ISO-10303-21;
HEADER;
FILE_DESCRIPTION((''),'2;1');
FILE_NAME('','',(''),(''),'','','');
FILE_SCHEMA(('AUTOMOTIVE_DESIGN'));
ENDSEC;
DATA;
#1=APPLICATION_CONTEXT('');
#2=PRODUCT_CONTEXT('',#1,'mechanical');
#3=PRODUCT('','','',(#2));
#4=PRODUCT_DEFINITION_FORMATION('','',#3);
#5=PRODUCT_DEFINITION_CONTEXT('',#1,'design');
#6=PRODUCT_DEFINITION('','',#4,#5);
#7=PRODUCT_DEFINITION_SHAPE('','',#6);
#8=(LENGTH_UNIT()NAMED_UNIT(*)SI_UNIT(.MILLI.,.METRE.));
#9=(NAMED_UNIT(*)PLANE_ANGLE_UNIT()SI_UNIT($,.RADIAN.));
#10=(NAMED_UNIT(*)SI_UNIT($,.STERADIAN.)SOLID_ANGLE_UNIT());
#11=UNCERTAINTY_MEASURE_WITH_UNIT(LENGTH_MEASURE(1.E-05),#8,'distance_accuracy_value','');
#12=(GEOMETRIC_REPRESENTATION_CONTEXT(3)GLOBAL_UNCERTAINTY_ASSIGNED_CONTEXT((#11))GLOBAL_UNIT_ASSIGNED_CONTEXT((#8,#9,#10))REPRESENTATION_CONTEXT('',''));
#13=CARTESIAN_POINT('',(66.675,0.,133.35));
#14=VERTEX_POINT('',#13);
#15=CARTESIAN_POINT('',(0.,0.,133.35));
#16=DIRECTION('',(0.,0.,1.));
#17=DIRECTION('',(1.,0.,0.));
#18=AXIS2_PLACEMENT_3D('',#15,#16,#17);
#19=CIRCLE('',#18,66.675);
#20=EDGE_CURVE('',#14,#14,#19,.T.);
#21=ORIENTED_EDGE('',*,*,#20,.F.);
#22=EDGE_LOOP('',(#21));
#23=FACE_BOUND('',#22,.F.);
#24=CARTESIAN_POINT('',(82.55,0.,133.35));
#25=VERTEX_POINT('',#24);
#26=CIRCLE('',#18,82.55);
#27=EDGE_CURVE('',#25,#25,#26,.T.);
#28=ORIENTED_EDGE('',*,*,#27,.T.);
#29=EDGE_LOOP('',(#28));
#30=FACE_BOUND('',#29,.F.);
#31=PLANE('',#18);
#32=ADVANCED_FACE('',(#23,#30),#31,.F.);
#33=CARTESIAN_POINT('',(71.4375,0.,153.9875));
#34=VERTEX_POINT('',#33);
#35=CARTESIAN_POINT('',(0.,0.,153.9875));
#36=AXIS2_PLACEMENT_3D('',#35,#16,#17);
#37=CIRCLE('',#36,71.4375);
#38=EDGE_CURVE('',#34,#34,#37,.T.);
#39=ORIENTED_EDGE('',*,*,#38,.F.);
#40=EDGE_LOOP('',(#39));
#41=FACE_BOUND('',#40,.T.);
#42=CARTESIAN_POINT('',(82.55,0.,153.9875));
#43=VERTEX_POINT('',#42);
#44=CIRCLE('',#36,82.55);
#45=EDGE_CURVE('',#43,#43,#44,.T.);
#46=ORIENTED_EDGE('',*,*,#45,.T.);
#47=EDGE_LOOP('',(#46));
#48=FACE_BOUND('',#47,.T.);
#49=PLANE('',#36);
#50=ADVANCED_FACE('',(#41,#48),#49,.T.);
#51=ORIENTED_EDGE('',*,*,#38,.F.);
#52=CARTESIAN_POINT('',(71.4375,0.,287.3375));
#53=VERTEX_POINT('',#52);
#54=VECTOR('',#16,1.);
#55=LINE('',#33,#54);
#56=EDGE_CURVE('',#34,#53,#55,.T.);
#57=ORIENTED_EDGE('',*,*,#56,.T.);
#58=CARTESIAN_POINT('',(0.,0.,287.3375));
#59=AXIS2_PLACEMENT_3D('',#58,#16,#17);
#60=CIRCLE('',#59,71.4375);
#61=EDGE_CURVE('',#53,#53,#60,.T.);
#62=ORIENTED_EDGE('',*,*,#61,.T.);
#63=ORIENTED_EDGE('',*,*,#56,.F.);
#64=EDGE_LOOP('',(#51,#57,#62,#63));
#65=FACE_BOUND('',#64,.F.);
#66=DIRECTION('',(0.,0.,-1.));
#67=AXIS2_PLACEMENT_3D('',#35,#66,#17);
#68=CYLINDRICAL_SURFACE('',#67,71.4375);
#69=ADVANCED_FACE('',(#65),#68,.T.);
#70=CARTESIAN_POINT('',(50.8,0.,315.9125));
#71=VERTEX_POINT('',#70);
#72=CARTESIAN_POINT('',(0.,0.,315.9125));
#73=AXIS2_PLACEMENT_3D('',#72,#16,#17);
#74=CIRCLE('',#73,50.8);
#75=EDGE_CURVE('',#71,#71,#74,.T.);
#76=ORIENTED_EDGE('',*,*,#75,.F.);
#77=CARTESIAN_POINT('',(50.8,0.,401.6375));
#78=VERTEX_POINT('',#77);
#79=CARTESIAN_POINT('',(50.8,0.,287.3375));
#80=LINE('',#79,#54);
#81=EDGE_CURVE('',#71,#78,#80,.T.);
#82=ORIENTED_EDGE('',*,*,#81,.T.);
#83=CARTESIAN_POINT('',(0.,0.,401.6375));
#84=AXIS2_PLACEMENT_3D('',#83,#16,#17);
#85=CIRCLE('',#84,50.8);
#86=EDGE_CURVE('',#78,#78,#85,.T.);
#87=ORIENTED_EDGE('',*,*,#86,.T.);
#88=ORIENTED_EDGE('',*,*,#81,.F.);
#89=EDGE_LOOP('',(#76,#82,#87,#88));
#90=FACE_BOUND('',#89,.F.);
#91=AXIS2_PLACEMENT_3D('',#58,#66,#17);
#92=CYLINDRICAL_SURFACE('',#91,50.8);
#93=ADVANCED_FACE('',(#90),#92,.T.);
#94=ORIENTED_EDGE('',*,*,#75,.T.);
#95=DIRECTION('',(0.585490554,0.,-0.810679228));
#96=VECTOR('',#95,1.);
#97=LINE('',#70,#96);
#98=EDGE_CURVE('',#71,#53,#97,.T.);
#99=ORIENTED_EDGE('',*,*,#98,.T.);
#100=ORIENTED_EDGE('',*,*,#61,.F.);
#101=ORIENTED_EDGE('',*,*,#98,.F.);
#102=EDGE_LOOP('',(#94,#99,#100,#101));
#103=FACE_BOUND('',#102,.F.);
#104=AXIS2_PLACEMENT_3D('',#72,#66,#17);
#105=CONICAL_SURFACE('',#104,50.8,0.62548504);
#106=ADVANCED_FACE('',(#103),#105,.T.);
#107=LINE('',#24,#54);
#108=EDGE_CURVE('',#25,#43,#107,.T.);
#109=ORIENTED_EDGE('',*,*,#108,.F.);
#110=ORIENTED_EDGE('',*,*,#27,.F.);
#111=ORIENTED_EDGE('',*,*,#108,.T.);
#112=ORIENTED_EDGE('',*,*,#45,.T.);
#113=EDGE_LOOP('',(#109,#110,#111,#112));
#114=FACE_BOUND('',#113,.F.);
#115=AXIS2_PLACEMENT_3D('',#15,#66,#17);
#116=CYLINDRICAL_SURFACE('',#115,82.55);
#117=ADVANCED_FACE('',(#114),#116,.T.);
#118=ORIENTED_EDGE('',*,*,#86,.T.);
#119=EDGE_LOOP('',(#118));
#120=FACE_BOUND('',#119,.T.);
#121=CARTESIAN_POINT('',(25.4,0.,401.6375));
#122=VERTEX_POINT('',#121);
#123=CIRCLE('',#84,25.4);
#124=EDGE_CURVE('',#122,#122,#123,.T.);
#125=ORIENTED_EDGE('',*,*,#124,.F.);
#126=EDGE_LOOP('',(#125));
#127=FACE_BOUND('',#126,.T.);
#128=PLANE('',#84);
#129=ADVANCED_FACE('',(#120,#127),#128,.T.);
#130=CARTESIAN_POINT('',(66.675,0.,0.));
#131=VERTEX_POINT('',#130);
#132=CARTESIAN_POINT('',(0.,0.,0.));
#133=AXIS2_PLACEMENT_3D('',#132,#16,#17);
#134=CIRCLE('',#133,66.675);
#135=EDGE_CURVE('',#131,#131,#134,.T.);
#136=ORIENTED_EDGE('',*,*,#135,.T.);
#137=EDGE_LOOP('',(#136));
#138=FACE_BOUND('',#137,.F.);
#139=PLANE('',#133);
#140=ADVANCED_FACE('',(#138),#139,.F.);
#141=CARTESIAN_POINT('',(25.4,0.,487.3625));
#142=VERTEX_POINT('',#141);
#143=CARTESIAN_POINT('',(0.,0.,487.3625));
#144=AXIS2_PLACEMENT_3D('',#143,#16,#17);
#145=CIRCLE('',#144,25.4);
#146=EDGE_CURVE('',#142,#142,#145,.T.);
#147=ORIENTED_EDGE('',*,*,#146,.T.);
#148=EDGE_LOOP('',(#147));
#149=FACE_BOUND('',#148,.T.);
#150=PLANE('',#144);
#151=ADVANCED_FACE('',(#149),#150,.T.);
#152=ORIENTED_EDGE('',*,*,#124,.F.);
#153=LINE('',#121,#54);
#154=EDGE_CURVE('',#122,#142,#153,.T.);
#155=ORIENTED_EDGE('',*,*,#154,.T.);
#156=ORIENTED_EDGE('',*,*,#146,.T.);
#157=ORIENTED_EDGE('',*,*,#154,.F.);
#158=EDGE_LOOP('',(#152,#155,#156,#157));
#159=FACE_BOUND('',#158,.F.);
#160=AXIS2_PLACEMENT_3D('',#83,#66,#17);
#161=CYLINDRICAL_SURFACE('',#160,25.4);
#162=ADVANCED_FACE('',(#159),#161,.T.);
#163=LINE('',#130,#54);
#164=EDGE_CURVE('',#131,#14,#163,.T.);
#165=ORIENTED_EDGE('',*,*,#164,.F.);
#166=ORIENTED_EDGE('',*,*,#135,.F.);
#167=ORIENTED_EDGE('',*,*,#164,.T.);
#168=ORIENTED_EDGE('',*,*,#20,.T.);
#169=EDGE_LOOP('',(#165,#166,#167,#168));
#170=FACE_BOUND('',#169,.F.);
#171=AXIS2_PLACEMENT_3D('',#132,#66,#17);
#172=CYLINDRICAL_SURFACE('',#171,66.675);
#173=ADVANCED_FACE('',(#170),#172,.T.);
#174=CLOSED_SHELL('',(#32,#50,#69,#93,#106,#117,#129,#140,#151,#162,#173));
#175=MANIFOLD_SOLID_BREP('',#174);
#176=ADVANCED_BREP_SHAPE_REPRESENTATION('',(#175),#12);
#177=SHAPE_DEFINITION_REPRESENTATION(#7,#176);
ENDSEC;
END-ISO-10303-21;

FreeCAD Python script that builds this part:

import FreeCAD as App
import Part
import Sketcher
Q = App.Units.Quantity


def add_polygon(sketch, points):
    """Adds a closed chain of lines whose ends are joined by coincident constraints."""
    first, n = sketch.GeometryCount, len(points)
    for a, b in zip(points, points[1:] + points[:1]):
        sketch.addGeometry(Part.LineSegment(App.Vector(*a, 0), App.Vector(*b, 0)), False)
    for i in range(n):
        sketch.addConstraint(Sketcher.Constraint("Coincident", first + i, 2, first + (i + 1) % n, 1))

doc = App.newDocument("Part")
params = doc.addObject("Spreadsheet::Sheet", "Params")
for row, (alias, value) in enumerate([
    ("sketch1_diameter", "5.25 in"),
    ("pad1_length", "5.25 in"),
    ("sketch2_diameter", "6.5 in"),
    ("pad2_length", "0.8125 in"),
    ("sketch3_diameter", "5.625 in"),
    ("pad3_length", "5.25 in"),
    ("sketch4_diameter", "4 in"),
    ("pad4_length", "4.5 in"),
    ("sketch5_diameter", "2 in"),
    ("pad5_length", "3.375 in"),
    ("sketch6_height", "1.125 in"),
    ("sketch6_width", "0.8125 in"),
    ("revolution_angle", "360 deg"),
], start=1):
    params.set(f"A{row}", alias)
    params.set(f"B{row}", "=" + value)
    params.setAlias(f"B{row}", alias)

body = doc.addObject("PartDesign::Body", "Body")

# Sketch on XY plane
sketch1 = body.newObject("Sketcher::SketchObject", "Sketch")
sketch1.AttachmentSupport = (doc.getObject("XY_Plane"), [""])
sketch1.MapMode = "FlatFace"
sketch1.addGeometry(Part.Circle(App.Vector(0, 0, 0), App.Vector(0, 0, 1), 66.675), False)
sketch1.addConstraint(Sketcher.Constraint("Coincident", 0, 3, -1, 1))
sketch1.addConstraint(Sketcher.Constraint("Diameter", 0, Q("5.25 in")))
sketch1.setExpression("Constraints[1]", "Params.sketch1_diameter")
pad1 = body.newObject("PartDesign::Pad", "Pad")
pad1.Profile = sketch1
pad1.setExpression("Length", "Params.pad1_length")

# Sketch on XY plane
sketch2 = body.newObject("Sketcher::SketchObject", "Sketch001")
sketch2.AttachmentSupport = (doc.getObject("XY_Plane"), [""])
sketch2.MapMode = "FlatFace"
sketch2.AttachmentOffset = App.Placement(App.Vector(0, 0, 5.25 * 25.4), App.Rotation())
sketch2.addGeometry(Part.Circle(App.Vector(0, 0, 0), App.Vector(0, 0, 1), 82.55), False)
sketch2.addConstraint(Sketcher.Constraint("Coincident", 0, 3, -1, 1))
sketch2.addConstraint(Sketcher.Constraint("Diameter", 0, Q("6.5 in")))
sketch2.setExpression("Constraints[1]", "Params.sketch2_diameter")
pad2 = body.newObject("PartDesign::Pad", "Pad001")
pad2.Profile = sketch2
pad2.setExpression("Length", "Params.pad2_length")

# Sketch on XY plane
sketch3 = body.newObject("Sketcher::SketchObject", "Sketch002")
sketch3.AttachmentSupport = (doc.getObject("XY_Plane"), [""])
sketch3.MapMode = "FlatFace"
sketch3.AttachmentOffset = App.Placement(App.Vector(0, 0, 6.0625 * 25.4), App.Rotation())
sketch3.addGeometry(Part.Circle(App.Vector(0, 0, 0), App.Vector(0, 0, 1), 71.4375), False)
sketch3.addConstraint(Sketcher.Constraint("Coincident", 0, 3, -1, 1))
sketch3.addConstraint(Sketcher.Constraint("Diameter", 0, Q("5.625 in")))
sketch3.setExpression("Constraints[1]", "Params.sketch3_diameter")
pad3 = body.newObject("PartDesign::Pad", "Pad002")
pad3.Profile = sketch3
pad3.setExpression("Length", "Params.pad3_length")

# Sketch on XY plane
sketch4 = body.newObject("Sketcher::SketchObject", "Sketch003")
sketch4.AttachmentSupport = (doc.getObject("XY_Plane"), [""])
sketch4.MapMode = "FlatFace"
sketch4.AttachmentOffset = App.Placement(App.Vector(0, 0, 11.3125 * 25.4), App.Rotation())
sketch4.addGeometry(Part.Circle(App.Vector(0, 0, 0), App.Vector(0, 0, 1), 50.8), False)
sketch4.addConstraint(Sketcher.Constraint("Coincident", 0, 3, -1, 1))
sketch4.addConstraint(Sketcher.Constraint("Diameter", 0, Q("4 in")))
sketch4.setExpression("Constraints[1]", "Params.sketch4_diameter")
pad4 = body.newObject("PartDesign::Pad", "Pad003")
pad4.Profile = sketch4
pad4.setExpression("Length", "Params.pad4_length")

# Sketch on XY plane
sketch5 = body.newObject("Sketcher::SketchObject", "Sketch004")
sketch5.AttachmentSupport = (doc.getObject("XY_Plane"), [""])
sketch5.MapMode = "FlatFace"
sketch5.AttachmentOffset = App.Placement(App.Vector(0, 0, 15.8125 * 25.4), App.Rotation())
sketch5.addGeometry(Part.Circle(App.Vector(0, 0, 0), App.Vector(0, 0, 1), 25.4), False)
sketch5.addConstraint(Sketcher.Constraint("Coincident", 0, 3, -1, 1))
sketch5.addConstraint(Sketcher.Constraint("Diameter", 0, Q("2 in")))
sketch5.setExpression("Constraints[1]", "Params.sketch5_diameter")
pad5 = body.newObject("PartDesign::Pad", "Pad004")
pad5.Profile = sketch5
pad5.setExpression("Length", "Params.pad5_length")

# Sketch on XZ plane
sketch6 = body.newObject("Sketcher::SketchObject", "Sketch005")
sketch6.AttachmentSupport = (doc.getObject("XZ_Plane"), [""])
sketch6.MapMode = "FlatFace"
add_polygon(sketch6, [(71.4375, 287.3375), (50.8, 287.3375), (50.8, 315.9125)])  # lines 0-2
sketch6.addConstraint(Sketcher.Constraint("Horizontal", 0))
sketch6.addConstraint(Sketcher.Constraint("Vertical", 1))
sketch6.addConstraint(Sketcher.Constraint("DistanceY", 1, 1, 1, 2, Q("1.125 in")))
sketch6.addConstraint(Sketcher.Constraint("DistanceX", -1, 1, 0, 2, Q("2 in")))
sketch6.addConstraint(Sketcher.Constraint("DistanceX", 0, 2, 0, 1, Q("0.8125 in")))
sketch6.addConstraint(Sketcher.Constraint("DistanceY", -1, 1, 0, 2, Q("11.3125 in")))
sketch6.setExpression("Constraints[5]", "Params.sketch6_height")
sketch6.setExpression("Constraints[7]", "Params.sketch6_width")
revolution = body.newObject("PartDesign::Revolution", "Revolution")
revolution.Profile = sketch6
revolution.ReferenceAxis = (sketch6, ["V_Axis"])
revolution.setExpression("Angle", "Params.revolution_angle")

doc.recompute()
